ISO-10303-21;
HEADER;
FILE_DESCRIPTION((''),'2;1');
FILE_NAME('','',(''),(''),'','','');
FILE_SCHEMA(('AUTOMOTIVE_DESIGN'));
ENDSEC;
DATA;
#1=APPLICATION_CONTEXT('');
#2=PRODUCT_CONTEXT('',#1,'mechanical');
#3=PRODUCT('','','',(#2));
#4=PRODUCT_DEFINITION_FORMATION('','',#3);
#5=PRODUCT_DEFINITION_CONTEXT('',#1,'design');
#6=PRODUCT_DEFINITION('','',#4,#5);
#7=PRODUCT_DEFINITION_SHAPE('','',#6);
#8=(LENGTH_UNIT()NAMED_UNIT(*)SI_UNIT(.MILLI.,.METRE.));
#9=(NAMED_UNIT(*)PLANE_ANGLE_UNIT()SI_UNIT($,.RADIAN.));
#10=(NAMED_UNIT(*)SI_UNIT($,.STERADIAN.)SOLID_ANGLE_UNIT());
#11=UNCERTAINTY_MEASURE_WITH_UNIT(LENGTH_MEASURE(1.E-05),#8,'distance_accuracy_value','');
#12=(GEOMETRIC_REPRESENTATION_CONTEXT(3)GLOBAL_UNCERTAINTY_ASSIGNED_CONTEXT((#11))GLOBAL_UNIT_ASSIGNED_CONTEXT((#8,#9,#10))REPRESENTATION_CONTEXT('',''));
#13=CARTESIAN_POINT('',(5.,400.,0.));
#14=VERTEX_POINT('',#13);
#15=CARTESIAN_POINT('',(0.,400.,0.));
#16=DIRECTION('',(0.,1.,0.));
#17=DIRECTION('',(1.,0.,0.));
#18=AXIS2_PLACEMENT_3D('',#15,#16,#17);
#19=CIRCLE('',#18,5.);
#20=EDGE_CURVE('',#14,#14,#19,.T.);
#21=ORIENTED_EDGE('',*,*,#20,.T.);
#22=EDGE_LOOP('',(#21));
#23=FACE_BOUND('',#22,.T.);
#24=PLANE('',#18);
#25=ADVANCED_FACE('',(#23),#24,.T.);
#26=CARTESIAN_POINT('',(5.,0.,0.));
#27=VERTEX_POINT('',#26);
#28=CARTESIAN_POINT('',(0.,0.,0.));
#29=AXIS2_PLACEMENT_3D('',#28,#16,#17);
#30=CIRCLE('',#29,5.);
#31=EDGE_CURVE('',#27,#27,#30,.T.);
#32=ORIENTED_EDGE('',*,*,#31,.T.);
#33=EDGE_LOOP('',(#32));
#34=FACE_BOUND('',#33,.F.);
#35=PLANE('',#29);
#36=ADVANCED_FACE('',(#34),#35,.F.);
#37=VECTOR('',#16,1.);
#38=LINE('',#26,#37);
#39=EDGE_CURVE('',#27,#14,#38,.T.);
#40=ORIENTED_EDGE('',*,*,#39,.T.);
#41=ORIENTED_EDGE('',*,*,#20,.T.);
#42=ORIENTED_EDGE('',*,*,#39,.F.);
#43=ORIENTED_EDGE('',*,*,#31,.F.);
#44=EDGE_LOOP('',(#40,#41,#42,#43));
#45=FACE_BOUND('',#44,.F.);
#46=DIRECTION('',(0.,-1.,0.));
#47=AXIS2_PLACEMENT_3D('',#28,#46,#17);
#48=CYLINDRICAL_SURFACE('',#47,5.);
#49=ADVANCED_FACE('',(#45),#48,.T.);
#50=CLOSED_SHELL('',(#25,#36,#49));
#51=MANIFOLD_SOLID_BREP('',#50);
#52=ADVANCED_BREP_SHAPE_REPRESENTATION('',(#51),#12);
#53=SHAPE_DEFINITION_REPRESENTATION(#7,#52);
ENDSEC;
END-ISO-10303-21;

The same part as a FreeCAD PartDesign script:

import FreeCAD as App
import Part
import Sketcher
Q = App.Units.Quantity

doc = App.newDocument("Part")
body = doc.addObject("PartDesign::Body", "Body")

sketch1 = body.newObject("Sketcher::SketchObject", "Sketch")
sketch1.AttachmentSupport = (doc.getObject("XZ_Plane"), [""])
sketch1.MapMode = "FlatFace"
sketch1.addGeometry(Part.Circle(App.Vector(0, 0, 0), App.Vector(0, 0, 1), 5), False)
sketch1.addConstraint(Sketcher.Constraint("Coincident", 0, 3, -1, 1))
sketch1.addConstraint(Sketcher.Constraint("Diameter", 0, Q("10 mm")))
pad1 = body.newObject("PartDesign::Pad", "Pad")
pad1.Profile = sketch1
pad1.Length = 400
pad1.Reversed = True

doc.recompute()
